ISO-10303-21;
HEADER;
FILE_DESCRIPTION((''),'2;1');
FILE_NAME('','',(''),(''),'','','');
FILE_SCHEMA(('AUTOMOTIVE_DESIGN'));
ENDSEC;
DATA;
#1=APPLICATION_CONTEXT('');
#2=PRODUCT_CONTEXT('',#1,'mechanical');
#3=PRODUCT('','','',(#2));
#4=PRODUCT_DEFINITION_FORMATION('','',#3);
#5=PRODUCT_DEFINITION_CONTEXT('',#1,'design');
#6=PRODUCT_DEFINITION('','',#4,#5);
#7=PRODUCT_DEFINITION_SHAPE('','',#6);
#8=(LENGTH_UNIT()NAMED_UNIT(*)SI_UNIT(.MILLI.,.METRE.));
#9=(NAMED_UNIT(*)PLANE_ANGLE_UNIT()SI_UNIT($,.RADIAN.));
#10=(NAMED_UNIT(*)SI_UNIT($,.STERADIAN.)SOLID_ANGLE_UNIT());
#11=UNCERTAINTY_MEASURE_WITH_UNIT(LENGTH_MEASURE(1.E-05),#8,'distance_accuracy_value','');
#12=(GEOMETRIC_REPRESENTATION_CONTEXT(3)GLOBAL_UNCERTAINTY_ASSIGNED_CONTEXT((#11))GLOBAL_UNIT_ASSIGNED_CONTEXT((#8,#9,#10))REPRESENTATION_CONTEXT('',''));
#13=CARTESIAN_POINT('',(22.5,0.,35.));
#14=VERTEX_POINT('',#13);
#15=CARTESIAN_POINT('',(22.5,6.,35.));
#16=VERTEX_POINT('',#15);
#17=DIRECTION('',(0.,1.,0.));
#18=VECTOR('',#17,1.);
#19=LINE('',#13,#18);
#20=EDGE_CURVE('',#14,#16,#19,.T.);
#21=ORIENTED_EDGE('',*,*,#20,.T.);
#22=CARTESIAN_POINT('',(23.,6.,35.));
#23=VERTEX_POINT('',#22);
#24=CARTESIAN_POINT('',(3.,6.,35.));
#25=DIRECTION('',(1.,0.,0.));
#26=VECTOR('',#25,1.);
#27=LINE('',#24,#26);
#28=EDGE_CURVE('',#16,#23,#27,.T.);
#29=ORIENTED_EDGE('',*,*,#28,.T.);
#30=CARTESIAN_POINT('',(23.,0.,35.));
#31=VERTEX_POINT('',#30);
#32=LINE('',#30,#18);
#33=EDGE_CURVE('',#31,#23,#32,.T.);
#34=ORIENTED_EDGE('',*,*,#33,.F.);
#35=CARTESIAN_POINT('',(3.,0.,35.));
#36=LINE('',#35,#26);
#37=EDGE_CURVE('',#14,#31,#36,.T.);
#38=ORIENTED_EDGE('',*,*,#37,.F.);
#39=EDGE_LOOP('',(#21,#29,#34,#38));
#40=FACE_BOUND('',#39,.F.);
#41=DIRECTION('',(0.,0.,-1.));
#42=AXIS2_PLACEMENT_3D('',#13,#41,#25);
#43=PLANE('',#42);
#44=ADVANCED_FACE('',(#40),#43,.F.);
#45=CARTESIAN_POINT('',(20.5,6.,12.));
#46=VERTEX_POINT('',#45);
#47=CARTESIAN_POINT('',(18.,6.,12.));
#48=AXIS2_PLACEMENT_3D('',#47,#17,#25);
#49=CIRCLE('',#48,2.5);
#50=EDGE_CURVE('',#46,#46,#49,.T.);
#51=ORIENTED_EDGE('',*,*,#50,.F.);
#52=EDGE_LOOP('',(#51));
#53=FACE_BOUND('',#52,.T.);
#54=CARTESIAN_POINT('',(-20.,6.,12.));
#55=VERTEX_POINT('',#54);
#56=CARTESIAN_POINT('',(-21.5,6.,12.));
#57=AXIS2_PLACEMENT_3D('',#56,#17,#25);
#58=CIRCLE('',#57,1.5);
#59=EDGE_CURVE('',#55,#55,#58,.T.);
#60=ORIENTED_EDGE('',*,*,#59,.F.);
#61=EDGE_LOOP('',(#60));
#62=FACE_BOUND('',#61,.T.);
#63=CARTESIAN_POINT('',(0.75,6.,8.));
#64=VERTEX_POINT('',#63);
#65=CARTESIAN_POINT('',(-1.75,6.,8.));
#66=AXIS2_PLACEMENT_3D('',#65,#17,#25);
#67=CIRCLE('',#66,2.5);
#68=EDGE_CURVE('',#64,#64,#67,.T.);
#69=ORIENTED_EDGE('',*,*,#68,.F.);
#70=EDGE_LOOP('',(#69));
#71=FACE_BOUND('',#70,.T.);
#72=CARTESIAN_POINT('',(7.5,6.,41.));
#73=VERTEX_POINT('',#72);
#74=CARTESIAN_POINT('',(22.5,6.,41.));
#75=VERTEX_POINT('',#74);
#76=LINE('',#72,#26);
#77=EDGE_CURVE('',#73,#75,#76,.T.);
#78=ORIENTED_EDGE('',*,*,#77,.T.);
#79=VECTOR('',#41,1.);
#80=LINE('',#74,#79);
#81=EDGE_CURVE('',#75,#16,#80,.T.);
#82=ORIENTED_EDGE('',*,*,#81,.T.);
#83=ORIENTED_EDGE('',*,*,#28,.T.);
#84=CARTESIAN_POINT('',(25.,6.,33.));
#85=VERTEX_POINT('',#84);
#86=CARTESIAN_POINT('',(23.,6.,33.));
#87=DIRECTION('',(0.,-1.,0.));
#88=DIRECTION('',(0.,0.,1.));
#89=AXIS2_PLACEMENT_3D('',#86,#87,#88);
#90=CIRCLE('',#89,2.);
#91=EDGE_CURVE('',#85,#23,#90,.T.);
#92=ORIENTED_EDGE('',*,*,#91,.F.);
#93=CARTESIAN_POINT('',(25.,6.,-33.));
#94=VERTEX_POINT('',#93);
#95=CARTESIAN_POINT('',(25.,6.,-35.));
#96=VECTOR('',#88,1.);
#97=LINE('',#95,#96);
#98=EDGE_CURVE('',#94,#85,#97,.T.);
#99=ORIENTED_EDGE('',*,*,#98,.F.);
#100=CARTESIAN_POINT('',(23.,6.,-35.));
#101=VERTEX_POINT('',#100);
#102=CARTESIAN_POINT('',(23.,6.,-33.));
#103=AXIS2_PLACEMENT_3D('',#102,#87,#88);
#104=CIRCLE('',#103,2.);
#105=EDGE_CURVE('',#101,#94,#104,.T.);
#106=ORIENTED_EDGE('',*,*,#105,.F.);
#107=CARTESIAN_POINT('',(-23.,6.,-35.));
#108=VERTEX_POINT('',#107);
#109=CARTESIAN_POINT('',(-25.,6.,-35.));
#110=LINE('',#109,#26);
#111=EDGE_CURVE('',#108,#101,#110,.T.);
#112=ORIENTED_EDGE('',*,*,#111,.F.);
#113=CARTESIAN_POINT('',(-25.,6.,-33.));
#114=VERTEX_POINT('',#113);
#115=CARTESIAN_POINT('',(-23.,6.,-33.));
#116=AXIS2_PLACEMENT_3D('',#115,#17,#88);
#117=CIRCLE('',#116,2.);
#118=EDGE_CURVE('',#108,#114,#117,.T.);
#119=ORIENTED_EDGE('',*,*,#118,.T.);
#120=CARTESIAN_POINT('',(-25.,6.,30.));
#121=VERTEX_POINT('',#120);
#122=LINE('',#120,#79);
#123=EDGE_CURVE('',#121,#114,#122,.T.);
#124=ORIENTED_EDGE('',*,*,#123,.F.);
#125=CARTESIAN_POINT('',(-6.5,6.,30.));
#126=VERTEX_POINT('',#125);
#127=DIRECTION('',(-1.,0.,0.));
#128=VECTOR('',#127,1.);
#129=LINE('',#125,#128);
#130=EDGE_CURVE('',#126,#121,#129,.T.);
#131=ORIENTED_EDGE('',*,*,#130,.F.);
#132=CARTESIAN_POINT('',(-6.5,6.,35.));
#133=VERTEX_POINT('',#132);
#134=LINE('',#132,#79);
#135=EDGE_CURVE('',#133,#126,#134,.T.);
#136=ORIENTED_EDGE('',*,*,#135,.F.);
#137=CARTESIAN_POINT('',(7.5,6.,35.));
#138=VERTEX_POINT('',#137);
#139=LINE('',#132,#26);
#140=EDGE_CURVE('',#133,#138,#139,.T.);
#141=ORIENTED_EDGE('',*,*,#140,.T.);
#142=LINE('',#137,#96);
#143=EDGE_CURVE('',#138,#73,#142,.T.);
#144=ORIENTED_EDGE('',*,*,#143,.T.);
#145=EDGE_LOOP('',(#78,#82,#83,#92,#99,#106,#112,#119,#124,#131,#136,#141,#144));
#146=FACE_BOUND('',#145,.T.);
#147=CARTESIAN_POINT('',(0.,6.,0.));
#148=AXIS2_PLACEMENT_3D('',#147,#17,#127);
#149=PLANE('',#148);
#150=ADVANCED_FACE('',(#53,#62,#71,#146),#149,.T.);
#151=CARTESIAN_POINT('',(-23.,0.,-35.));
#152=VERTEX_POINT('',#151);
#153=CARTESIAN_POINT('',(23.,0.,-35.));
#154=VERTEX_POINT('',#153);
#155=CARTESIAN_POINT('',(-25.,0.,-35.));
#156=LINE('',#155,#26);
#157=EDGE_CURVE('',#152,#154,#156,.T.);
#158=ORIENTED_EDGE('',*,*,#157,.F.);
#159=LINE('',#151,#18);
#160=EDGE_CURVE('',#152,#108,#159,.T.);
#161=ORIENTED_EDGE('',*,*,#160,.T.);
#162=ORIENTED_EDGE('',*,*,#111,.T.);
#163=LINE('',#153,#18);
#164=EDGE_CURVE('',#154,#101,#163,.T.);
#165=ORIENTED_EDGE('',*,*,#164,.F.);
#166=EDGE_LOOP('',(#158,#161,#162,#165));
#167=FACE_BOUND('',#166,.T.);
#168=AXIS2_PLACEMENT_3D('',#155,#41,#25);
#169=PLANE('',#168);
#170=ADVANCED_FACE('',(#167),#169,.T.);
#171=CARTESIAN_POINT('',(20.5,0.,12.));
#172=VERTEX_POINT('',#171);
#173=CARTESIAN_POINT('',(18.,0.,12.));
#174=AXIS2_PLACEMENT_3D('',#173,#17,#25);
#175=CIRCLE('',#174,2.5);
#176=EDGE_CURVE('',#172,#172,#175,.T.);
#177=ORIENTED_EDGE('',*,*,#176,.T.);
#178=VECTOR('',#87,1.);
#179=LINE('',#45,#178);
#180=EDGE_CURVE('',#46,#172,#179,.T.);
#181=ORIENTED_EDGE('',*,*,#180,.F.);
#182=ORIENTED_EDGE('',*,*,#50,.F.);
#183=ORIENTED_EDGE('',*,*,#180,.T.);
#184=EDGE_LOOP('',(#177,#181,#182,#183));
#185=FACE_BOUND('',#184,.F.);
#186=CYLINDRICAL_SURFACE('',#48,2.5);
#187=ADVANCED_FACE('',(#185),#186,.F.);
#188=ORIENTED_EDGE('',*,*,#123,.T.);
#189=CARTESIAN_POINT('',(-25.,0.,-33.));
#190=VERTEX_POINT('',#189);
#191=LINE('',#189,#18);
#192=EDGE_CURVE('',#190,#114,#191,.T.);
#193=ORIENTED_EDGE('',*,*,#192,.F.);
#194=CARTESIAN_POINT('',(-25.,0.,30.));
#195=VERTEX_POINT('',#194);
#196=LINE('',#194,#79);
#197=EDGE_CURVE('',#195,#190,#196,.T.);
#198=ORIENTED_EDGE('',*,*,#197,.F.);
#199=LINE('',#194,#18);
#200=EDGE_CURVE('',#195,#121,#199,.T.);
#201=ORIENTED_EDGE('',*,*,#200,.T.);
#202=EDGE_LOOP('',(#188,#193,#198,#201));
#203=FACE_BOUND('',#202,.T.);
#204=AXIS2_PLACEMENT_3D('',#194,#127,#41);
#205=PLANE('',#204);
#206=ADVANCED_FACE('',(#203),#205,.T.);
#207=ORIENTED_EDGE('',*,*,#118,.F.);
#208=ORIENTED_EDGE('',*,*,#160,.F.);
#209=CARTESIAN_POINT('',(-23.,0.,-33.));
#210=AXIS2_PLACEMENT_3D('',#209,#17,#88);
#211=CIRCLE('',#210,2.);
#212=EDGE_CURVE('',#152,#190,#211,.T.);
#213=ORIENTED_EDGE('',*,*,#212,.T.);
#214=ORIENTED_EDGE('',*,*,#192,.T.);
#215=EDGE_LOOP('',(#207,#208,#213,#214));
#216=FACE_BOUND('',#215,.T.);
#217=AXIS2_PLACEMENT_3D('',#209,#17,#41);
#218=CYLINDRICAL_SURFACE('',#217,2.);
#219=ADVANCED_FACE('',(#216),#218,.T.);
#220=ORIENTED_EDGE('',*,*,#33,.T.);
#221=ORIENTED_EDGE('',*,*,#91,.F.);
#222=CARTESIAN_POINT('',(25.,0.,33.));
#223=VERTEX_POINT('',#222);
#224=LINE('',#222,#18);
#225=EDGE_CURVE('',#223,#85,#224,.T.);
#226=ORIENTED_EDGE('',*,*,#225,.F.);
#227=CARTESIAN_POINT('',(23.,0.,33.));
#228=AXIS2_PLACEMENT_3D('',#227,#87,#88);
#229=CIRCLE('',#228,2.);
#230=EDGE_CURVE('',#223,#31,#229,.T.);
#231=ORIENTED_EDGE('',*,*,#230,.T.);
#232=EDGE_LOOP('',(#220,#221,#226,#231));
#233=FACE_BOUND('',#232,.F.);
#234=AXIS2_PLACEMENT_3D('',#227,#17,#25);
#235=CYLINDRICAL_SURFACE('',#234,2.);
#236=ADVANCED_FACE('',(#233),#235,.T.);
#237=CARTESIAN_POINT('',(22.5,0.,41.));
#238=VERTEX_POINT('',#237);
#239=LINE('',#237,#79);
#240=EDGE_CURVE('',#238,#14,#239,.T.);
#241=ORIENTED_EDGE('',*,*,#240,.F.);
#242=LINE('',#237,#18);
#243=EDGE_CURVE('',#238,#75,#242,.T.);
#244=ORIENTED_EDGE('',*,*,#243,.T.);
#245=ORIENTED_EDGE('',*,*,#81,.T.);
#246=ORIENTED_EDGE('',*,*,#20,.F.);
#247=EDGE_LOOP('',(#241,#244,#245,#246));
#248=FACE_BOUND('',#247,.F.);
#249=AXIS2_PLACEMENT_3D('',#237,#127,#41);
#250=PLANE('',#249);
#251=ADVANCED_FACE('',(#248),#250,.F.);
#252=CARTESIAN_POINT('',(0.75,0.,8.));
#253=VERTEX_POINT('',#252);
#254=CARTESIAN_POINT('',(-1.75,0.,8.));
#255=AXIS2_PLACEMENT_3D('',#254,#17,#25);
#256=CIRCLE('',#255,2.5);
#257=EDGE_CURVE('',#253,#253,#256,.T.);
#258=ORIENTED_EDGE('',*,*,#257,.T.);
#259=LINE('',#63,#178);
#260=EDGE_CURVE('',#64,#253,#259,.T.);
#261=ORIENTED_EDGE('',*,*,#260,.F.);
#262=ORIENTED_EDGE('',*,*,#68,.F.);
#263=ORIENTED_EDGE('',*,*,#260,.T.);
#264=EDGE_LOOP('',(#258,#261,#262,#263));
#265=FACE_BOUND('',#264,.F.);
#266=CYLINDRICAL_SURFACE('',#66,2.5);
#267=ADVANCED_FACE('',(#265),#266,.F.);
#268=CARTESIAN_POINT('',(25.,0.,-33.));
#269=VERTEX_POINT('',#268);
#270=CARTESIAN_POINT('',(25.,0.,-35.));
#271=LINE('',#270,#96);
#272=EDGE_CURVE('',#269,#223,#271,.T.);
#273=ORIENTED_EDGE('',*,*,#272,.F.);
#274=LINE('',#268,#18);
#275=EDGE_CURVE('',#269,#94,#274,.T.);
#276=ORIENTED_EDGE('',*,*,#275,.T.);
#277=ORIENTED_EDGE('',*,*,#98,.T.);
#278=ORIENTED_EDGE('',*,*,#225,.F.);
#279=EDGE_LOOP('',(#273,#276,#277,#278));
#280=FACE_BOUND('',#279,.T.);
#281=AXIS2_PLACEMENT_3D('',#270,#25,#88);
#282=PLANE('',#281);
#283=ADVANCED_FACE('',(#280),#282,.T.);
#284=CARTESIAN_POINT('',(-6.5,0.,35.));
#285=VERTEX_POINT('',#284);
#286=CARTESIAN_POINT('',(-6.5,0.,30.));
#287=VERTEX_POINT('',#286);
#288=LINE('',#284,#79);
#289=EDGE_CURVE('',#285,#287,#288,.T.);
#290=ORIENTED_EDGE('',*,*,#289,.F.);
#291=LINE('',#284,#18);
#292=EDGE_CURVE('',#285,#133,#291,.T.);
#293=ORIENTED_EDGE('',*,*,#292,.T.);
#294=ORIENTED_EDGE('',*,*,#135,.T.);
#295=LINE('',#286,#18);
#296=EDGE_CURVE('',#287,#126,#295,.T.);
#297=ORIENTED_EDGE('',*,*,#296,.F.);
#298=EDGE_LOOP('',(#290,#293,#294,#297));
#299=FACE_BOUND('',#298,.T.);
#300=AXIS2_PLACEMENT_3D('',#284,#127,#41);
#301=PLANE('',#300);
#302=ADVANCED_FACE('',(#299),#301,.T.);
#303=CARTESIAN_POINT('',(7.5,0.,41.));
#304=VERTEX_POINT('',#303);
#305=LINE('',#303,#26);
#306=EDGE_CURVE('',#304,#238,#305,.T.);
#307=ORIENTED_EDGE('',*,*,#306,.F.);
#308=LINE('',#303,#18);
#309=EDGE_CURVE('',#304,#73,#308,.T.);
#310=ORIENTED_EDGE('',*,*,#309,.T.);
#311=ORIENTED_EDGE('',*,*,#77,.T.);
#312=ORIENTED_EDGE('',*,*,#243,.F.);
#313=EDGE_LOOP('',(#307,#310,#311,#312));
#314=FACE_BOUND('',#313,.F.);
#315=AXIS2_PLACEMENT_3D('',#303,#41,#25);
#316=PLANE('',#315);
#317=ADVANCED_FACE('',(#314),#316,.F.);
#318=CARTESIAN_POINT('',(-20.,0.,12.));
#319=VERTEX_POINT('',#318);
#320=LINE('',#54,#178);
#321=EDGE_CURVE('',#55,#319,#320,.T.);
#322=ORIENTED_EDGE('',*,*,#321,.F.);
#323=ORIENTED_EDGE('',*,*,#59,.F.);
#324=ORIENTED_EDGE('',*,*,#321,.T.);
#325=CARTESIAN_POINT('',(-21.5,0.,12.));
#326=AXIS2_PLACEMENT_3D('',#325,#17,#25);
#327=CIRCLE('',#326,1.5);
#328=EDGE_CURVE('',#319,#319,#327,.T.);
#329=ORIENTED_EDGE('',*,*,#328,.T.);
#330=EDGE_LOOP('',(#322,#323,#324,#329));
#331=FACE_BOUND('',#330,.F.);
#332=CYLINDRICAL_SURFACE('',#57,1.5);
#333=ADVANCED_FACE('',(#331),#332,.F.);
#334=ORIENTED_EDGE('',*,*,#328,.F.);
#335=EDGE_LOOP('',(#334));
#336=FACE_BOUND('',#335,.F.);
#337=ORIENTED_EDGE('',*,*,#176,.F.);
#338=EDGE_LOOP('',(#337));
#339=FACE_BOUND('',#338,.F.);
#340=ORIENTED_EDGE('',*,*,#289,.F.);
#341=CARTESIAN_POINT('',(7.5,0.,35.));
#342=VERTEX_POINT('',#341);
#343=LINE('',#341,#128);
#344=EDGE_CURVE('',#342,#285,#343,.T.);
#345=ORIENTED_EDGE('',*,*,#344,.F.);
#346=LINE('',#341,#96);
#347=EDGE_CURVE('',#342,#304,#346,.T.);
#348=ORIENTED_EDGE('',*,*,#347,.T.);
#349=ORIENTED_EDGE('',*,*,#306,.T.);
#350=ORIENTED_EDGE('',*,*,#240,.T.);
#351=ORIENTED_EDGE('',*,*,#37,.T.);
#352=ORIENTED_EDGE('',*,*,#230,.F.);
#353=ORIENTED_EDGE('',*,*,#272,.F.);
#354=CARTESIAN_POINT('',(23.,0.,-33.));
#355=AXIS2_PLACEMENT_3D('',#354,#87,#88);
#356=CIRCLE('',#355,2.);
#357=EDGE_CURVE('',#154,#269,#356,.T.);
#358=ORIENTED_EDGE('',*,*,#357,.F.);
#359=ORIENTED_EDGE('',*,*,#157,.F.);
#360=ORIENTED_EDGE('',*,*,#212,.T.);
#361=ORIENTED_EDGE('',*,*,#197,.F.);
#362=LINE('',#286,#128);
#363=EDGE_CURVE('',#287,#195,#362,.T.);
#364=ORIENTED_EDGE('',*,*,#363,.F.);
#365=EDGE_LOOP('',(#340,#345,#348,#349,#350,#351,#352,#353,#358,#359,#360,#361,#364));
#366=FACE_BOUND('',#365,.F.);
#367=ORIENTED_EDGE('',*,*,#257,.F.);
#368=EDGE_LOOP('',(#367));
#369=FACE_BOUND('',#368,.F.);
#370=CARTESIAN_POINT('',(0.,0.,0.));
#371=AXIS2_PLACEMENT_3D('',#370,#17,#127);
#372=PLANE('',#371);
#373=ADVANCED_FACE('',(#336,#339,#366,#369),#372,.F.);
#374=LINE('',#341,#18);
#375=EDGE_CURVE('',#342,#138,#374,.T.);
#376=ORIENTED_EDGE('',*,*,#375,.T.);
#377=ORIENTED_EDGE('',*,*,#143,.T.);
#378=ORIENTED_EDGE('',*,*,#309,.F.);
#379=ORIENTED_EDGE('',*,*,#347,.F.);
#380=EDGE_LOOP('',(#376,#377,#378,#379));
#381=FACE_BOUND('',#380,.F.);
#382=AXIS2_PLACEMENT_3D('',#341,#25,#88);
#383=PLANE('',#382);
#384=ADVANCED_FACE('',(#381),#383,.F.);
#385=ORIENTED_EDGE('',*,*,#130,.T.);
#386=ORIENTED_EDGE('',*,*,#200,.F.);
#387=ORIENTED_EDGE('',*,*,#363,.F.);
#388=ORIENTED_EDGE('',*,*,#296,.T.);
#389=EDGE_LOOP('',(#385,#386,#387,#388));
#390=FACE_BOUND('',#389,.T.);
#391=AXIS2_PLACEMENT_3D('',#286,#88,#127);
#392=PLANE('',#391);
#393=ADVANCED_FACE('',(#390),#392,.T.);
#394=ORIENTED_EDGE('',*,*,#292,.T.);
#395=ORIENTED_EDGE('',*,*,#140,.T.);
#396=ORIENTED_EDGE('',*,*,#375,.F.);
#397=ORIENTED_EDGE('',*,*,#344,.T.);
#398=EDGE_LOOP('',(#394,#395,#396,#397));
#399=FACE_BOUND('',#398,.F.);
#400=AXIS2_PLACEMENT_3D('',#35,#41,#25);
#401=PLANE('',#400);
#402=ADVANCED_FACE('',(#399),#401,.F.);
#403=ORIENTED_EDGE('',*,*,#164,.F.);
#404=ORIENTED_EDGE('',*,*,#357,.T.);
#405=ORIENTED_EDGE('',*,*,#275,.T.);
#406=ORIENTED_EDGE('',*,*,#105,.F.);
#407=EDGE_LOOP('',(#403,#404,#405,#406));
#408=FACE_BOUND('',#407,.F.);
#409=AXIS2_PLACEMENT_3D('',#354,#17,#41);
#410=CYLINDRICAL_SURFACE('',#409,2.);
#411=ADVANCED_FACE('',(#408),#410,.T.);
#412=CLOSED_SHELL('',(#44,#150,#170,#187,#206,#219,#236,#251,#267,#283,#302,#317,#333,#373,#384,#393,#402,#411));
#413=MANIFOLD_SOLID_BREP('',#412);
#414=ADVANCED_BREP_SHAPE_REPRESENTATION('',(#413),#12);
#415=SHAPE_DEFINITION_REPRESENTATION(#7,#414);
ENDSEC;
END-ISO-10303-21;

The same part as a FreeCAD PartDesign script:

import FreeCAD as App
import Part
import Sketcher

V = App.Vector


def edges_at(feature, points):
    """Names of the edges that pass closest to the given points."""
    edges = feature.Shape.Edges
    near = lambda p: min(range(len(edges)), key=lambda i: edges[i].distToShape(Part.Vertex(*p))[0])
    return sorted({f"Edge{near(p) + 1}" for p in points})

doc = App.newDocument("Part")
body = doc.addObject("PartDesign::Body", "Body")

sketch1 = body.newObject("Sketcher::SketchObject", "Sketch")
sketch1.AttachmentSupport = (doc.getObject("XZ_Plane"), [""])
sketch1.MapMode = "FlatFace"
sketch1.addGeometry(Part.LineSegment(V(25, -35, 0), V(-25, -35, 0)), False)
sketch1.addGeometry(Part.LineSegment(V(-25, -35, 0), V(-25, 30, 0)), False)
sketch1.addGeometry(Part.LineSegment(V(-25, 30, 0), V(-6.5, 30, 0)), False)
sketch1.addGeometry(Part.LineSegment(V(-6.5, 30, 0), V(-6.5, 35, 0)), False)
sketch1.addGeometry(Part.LineSegment(V(-6.5, 35, 0), V(7.5, 35, 0)), False)
sketch1.addGeometry(Part.LineSegment(V(7.5, 35, 0), V(7.5, 41, 0)), False)
sketch1.addGeometry(Part.LineSegment(V(7.5, 41, 0), V(22.5, 41, 0)), False)
sketch1.addGeometry(Part.LineSegment(V(22.5, 41, 0), V(22.5, 35, 0)), False)
sketch1.addGeometry(Part.LineSegment(V(22.5, 35, 0), V(25, 35, 0)), False)
sketch1.addGeometry(Part.LineSegment(V(25, 35, 0), V(25, -35, 0)), False)
sketch1.addConstraint(Sketcher.Constraint("Coincident", 0, 2, 1, 1))
sketch1.addConstraint(Sketcher.Constraint("Coincident", 1, 2, 2, 1))
sketch1.addConstraint(Sketcher.Constraint("Coincident", 2, 2, 3, 1))
sketch1.addConstraint(Sketcher.Constraint("Coincident", 3, 2, 4, 1))
sketch1.addConstraint(Sketcher.Constraint("Coincident", 4, 2, 5, 1))
sketch1.addConstraint(Sketcher.Constraint("Coincident", 5, 2, 6, 1))
sketch1.addConstraint(Sketcher.Constraint("Coincident", 6, 2, 7, 1))
sketch1.addConstraint(Sketcher.Constraint("Coincident", 7, 2, 8, 1))
sketch1.addConstraint(Sketcher.Constraint("Coincident", 8, 2, 9, 1))
sketch1.addConstraint(Sketcher.Constraint("Coincident", 9, 2, 0, 1))
sketch1.addConstraint(Sketcher.Constraint("Horizontal", 0))
sketch1.addConstraint(Sketcher.Constraint("Vertical", 1))
sketch1.addConstraint(Sketcher.Constraint("Horizontal", 2))
sketch1.addConstraint(Sketcher.Constraint("Vertical", 3))
sketch1.addConstraint(Sketcher.Constraint("Horizontal", 4))
sketch1.addConstraint(Sketcher.Constraint("Vertical", 5))
sketch1.addConstraint(Sketcher.Constraint("Horizontal", 6))
sketch1.addConstraint(Sketcher.Constraint("Vertical", 7))
sketch1.addConstraint(Sketcher.Constraint("Horizontal", 8))
sketch1.addConstraint(Sketcher.Constraint("Vertical", 9))
sketch1.addConstraint(Sketcher.Constraint("Symmetric", 0, 2, 8, 2, -1, 1))
sketch1.addConstraint(Sketcher.Constraint("Horizontal", 4, 2, 7, 2))
sketch1.addConstraint(Sketcher.Constraint("DistanceX", 0, 2, 0, 1, 50.0))
sketch1.addConstraint(Sketcher.Constraint("DistanceX", 6, 1, 6, 2, 15.0))
sketch1.addConstraint(Sketcher.Constraint("DistanceY", 3, 1, 3, 2, 5.0))
sketch1.addConstraint(Sketcher.Constraint("DistanceY", 5, 1, 5, 2, 6.0))
sketch1.addConstraint(Sketcher.Constraint("DistanceY", 9, 2, 9, 1, 70.0))
sketch1.addConstraint(Sketcher.Constraint("DistanceX", 2, 1, 2, 2, 18.5))
sketch1.addConstraint(Sketcher.Constraint("DistanceX", 8, 1, 8, 2, 2.5))
pad1 = body.newObject("PartDesign::Pad", "Pad")
pad1.Profile = sketch1
pad1.Length = 6
pad1.Reversed = True
doc.recompute()

fillet = body.newObject("PartDesign::Fillet", "Fillet")
fillet.Base = (pad1, edges_at(pad1, [(25, 3, -35), (-25, 3, -35), (25, 3, 35)]))
fillet.Radius = 2

sketch2 = body.newObject("Sketcher::SketchObject", "Sketch001")
sketch2.AttachmentSupport = (doc.getObject("XZ_Plane"), [""])
sketch2.MapMode = "FlatFace"
sketch2.AttachmentOffset = App.Placement(V(0, 0, -6), App.Rotation())
sketch2.addGeometry(Part.Circle(V(-1.8, 8, 0), V(0, 0, 1), 2.5), False)
sketch2.addGeometry(Part.Circle(V(-21.5, 12, 0), V(0, 0, 1), 1.5), False)
sketch2.addGeometry(Part.Circle(V(18, 12, 0), V(0, 0, 1), 2.5), False)
sketch2.addConstraint(Sketcher.Constraint("Equal", 0, 2))
sketch2.addConstraint(Sketcher.Constraint("Horizontal", 1, 3, 2, 3))
sketch2.addConstraint(Sketcher.Constraint("Diameter", 0, 5.0))
sketch2.addConstraint(Sketcher.Constraint("Diameter", 1, 3.0))
sketch2.addConstraint(Sketcher.Constraint("DistanceX", 1, 3, 0, 3, 19.75))
sketch2.addConstraint(Sketcher.Constraint("DistanceX", 0, 3, 2, 3, 19.75))
sketch2.addConstraint(Sketcher.Constraint("DistanceY", -1, 1, 0, 3, 8.0))
sketch2.addConstraint(Sketcher.Constraint("DistanceY", -1, 1, 1, 3, 12.0))
sketch2.addConstraint(Sketcher.Constraint("DistanceX", -1, 1, 2, 3, 18.0))
pocket1 = body.newObject("PartDesign::Pocket", "Pocket")
pocket1.Profile = sketch2
pocket1.Type = "ThroughAll"
pocket1.Reversed = True

doc.recompute()
